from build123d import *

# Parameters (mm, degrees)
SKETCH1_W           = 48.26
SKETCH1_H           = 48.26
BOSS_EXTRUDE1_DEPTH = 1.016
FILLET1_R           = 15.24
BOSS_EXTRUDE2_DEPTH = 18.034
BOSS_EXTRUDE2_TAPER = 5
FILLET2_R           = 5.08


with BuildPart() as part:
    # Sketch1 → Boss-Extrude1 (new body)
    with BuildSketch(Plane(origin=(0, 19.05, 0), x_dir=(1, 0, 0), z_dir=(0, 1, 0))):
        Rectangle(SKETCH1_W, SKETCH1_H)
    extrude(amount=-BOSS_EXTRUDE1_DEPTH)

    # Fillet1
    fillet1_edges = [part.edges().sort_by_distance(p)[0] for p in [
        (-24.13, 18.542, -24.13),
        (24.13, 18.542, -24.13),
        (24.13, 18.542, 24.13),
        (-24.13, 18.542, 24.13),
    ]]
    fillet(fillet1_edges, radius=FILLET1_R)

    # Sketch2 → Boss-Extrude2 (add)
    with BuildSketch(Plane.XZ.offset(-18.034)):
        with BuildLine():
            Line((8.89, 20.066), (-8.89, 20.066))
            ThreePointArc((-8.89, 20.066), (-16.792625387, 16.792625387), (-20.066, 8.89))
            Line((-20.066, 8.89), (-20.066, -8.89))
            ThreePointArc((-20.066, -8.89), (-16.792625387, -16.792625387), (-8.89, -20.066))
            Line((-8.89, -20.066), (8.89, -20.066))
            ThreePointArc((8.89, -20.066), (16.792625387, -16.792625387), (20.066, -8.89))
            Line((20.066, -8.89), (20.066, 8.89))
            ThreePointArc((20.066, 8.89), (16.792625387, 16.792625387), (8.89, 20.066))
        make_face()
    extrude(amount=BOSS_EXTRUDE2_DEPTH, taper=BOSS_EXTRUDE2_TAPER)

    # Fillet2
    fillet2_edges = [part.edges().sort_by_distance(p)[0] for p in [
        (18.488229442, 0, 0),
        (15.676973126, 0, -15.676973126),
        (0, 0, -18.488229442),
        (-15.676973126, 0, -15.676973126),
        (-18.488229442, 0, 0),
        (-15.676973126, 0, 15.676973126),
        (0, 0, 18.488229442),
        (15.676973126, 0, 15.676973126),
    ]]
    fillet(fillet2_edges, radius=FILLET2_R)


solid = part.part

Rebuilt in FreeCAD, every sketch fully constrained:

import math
import FreeCAD as App
import Part
import Sketcher
from FreeCAD import Vector
Q = App.Units.Quantity


def edges_at(feature, points):
    """Names of the edges that pass closest to the given points."""
    edges = feature.Shape.Edges
    near = lambda p: min(range(len(edges)), key=lambda i: edges[i].distToShape(Part.Vertex(*p))[0])
    return sorted({f"Edge{near(p) + 1}" for p in points})

doc = App.newDocument("Part")
body = doc.addObject("PartDesign::Body", "Body")

# Sketch on XZ plane
sketch1 = body.newObject("Sketcher::SketchObject", "Sketch")
sketch1.AttachmentSupport = (doc.getObject("XZ_Plane"), [""])
sketch1.MapMode = "FlatFace"
sketch1.AttachmentOffset = App.Placement(Vector(0, 0, -0.75 * 25.4), App.Rotation())
sketch1.addGeometry(Part.LineSegment(Vector(-24, -24, 0), Vector(-24, 24, 0)), False)
sketch1.addGeometry(Part.LineSegment(Vector(-24, 24, 0), Vector(24, 24, 0)), False)
sketch1.addGeometry(Part.LineSegment(Vector(24, 24, 0), Vector(24, -24, 0)), False)
sketch1.addGeometry(Part.LineSegment(Vector(24, -24, 0), Vector(-24, -24, 0)), False)
sketch1.addConstraint(Sketcher.Constraint("Coincident", 0, 2, 1, 1))
sketch1.addConstraint(Sketcher.Constraint("Coincident", 1, 2, 2, 1))
sketch1.addConstraint(Sketcher.Constraint("Coincident", 2, 2, 3, 1))
sketch1.addConstraint(Sketcher.Constraint("Coincident", 3, 2, 0, 1))
sketch1.addConstraint(Sketcher.Constraint("Vertical", 0))
sketch1.addConstraint(Sketcher.Constraint("Horizontal", 1))
sketch1.addConstraint(Sketcher.Constraint("Vertical", 2))
sketch1.addConstraint(Sketcher.Constraint("Horizontal", 3))
sketch1.addConstraint(Sketcher.Constraint("Symmetric", 0, 2, 2, 2, -1, 1))
sketch1.addConstraint(Sketcher.Constraint("Equal", 3, 0))
sketch1.addConstraint(Sketcher.Constraint("DistanceX", 1, 1, 1, 2, Q("1.9 in")))
pad1 = body.newObject("PartDesign::Pad", "Pad")
pad1.Profile = sketch1
pad1.Length = Q("0.04 in")
doc.recompute()

fillet = body.newObject("PartDesign::Fillet", "Fillet")
fillet.Base = (pad1, edges_at(pad1, [
    (-24.13, 18.542, -24.13),
    (24.13, 18.542, -24.13),
    (24.13, 18.542, 24.13),
    (-24.13, 18.542, 24.13),
]))
fillet.Radius = Q("0.6 in")

# Sketch on XZ plane
sketch2 = body.newObject("Sketcher::SketchObject", "Sketch001")
sketch2.AttachmentSupport = (doc.getObject("XZ_Plane"), [""])
sketch2.MapMode = "FlatFace"
sketch2.AttachmentOffset = App.Placement(Vector(0, 0, -0.71 * 25.4), App.Rotation())
sketch2.addGeometry(Part.LineSegment(Vector(9, 20, 0), Vector(-9, 20, 0)), False)
sketch2.addGeometry(Part.ArcOfCircle(Part.Circle(Vector(-9, 9, 0), Vector(0, 0, 1), 11), math.radians(90), math.radians(180)), False)
sketch2.addGeometry(Part.LineSegment(Vector(-20, 9, 0), Vector(-20, -9, 0)), False)
sketch2.addGeometry(Part.ArcOfCircle(Part.Circle(Vector(-9, -9, 0), Vector(0, 0, 1), 11), math.radians(180), math.radians(270)), False)
sketch2.addGeometry(Part.LineSegment(Vector(-9, -20, 0), Vector(9, -20, 0)), False)
sketch2.addGeometry(Part.ArcOfCircle(Part.Circle(Vector(9, -9, 0), Vector(0, 0, 1), 11), math.radians(-90), math.radians(0)), False)
sketch2.addGeometry(Part.LineSegment(Vector(20, -9, 0), Vector(20, 9, 0)), False)
sketch2.addGeometry(Part.ArcOfCircle(Part.Circle(Vector(9, 9, 0), Vector(0, 0, 1), 11), math.radians(0), math.radians(90)), False)
sketch2.addConstraint(Sketcher.Constraint("Tangent", 0, 2, 1, 1))
sketch2.addConstraint(Sketcher.Constraint("Tangent", 1, 2, 2, 1))
sketch2.addConstraint(Sketcher.Constraint("Tangent", 2, 2, 3, 1))
sketch2.addConstraint(Sketcher.Constraint("Tangent", 3, 2, 4, 1))
sketch2.addConstraint(Sketcher.Constraint("Tangent", 4, 2, 5, 1))
sketch2.addConstraint(Sketcher.Constraint("Tangent", 5, 2, 6, 1))
sketch2.addConstraint(Sketcher.Constraint("Tangent", 6, 2, 7, 1))
sketch2.addConstraint(Sketcher.Constraint("Tangent", 7, 2, 0, 1))
sketch2.addConstraint(Sketcher.Constraint("Horizontal", 0))
sketch2.addConstraint(Sketcher.Constraint("Vertical", 2))
sketch2.addConstraint(Sketcher.Constraint("Horizontal", 4))
sketch2.addConstraint(Sketcher.Constraint("Vertical", 6))
sketch2.addConstraint(Sketcher.Constraint("Equal", 1, 3))
sketch2.addConstraint(Sketcher.Constraint("Equal", 3, 5))
sketch2.addConstraint(Sketcher.Constraint("Equal", 5, 7))
sketch2.addConstraint(Sketcher.Constraint("Symmetric", 1, 3, 5, 3, -1, 1))
sketch2.addConstraint(Sketcher.Constraint("Equal", 4, 2))
sketch2.addConstraint(Sketcher.Constraint("Radius", 1, Q("0.44 in")))
sketch2.addConstraint(Sketcher.Constraint("DistanceX", 0, 2, 0, 1, Q("0.7 in")))
pad2 = body.newObject("PartDesign::Pad", "Pad001")
pad2.Profile = sketch2
pad2.Length = Q("0.71 in")
pad2.TaperAngle = -5
doc.recompute()

fillet2 = body.newObject("PartDesign::Fillet", "Fillet001")
fillet2.Base = (pad2, edges_at(pad2, [
    (18.488, 0, 0),
    (15.677, 0, -15.677),
    (0, 0, -18.488),
    (-15.677, 0, -15.677),
    (-18.488, 0, 0),
    (-15.677, 0, 15.677),
    (0, 0, 18.488),
    (15.677, 0, 15.677),
]))
fillet2.Radius = Q("0.2 in")

doc.recompute()
